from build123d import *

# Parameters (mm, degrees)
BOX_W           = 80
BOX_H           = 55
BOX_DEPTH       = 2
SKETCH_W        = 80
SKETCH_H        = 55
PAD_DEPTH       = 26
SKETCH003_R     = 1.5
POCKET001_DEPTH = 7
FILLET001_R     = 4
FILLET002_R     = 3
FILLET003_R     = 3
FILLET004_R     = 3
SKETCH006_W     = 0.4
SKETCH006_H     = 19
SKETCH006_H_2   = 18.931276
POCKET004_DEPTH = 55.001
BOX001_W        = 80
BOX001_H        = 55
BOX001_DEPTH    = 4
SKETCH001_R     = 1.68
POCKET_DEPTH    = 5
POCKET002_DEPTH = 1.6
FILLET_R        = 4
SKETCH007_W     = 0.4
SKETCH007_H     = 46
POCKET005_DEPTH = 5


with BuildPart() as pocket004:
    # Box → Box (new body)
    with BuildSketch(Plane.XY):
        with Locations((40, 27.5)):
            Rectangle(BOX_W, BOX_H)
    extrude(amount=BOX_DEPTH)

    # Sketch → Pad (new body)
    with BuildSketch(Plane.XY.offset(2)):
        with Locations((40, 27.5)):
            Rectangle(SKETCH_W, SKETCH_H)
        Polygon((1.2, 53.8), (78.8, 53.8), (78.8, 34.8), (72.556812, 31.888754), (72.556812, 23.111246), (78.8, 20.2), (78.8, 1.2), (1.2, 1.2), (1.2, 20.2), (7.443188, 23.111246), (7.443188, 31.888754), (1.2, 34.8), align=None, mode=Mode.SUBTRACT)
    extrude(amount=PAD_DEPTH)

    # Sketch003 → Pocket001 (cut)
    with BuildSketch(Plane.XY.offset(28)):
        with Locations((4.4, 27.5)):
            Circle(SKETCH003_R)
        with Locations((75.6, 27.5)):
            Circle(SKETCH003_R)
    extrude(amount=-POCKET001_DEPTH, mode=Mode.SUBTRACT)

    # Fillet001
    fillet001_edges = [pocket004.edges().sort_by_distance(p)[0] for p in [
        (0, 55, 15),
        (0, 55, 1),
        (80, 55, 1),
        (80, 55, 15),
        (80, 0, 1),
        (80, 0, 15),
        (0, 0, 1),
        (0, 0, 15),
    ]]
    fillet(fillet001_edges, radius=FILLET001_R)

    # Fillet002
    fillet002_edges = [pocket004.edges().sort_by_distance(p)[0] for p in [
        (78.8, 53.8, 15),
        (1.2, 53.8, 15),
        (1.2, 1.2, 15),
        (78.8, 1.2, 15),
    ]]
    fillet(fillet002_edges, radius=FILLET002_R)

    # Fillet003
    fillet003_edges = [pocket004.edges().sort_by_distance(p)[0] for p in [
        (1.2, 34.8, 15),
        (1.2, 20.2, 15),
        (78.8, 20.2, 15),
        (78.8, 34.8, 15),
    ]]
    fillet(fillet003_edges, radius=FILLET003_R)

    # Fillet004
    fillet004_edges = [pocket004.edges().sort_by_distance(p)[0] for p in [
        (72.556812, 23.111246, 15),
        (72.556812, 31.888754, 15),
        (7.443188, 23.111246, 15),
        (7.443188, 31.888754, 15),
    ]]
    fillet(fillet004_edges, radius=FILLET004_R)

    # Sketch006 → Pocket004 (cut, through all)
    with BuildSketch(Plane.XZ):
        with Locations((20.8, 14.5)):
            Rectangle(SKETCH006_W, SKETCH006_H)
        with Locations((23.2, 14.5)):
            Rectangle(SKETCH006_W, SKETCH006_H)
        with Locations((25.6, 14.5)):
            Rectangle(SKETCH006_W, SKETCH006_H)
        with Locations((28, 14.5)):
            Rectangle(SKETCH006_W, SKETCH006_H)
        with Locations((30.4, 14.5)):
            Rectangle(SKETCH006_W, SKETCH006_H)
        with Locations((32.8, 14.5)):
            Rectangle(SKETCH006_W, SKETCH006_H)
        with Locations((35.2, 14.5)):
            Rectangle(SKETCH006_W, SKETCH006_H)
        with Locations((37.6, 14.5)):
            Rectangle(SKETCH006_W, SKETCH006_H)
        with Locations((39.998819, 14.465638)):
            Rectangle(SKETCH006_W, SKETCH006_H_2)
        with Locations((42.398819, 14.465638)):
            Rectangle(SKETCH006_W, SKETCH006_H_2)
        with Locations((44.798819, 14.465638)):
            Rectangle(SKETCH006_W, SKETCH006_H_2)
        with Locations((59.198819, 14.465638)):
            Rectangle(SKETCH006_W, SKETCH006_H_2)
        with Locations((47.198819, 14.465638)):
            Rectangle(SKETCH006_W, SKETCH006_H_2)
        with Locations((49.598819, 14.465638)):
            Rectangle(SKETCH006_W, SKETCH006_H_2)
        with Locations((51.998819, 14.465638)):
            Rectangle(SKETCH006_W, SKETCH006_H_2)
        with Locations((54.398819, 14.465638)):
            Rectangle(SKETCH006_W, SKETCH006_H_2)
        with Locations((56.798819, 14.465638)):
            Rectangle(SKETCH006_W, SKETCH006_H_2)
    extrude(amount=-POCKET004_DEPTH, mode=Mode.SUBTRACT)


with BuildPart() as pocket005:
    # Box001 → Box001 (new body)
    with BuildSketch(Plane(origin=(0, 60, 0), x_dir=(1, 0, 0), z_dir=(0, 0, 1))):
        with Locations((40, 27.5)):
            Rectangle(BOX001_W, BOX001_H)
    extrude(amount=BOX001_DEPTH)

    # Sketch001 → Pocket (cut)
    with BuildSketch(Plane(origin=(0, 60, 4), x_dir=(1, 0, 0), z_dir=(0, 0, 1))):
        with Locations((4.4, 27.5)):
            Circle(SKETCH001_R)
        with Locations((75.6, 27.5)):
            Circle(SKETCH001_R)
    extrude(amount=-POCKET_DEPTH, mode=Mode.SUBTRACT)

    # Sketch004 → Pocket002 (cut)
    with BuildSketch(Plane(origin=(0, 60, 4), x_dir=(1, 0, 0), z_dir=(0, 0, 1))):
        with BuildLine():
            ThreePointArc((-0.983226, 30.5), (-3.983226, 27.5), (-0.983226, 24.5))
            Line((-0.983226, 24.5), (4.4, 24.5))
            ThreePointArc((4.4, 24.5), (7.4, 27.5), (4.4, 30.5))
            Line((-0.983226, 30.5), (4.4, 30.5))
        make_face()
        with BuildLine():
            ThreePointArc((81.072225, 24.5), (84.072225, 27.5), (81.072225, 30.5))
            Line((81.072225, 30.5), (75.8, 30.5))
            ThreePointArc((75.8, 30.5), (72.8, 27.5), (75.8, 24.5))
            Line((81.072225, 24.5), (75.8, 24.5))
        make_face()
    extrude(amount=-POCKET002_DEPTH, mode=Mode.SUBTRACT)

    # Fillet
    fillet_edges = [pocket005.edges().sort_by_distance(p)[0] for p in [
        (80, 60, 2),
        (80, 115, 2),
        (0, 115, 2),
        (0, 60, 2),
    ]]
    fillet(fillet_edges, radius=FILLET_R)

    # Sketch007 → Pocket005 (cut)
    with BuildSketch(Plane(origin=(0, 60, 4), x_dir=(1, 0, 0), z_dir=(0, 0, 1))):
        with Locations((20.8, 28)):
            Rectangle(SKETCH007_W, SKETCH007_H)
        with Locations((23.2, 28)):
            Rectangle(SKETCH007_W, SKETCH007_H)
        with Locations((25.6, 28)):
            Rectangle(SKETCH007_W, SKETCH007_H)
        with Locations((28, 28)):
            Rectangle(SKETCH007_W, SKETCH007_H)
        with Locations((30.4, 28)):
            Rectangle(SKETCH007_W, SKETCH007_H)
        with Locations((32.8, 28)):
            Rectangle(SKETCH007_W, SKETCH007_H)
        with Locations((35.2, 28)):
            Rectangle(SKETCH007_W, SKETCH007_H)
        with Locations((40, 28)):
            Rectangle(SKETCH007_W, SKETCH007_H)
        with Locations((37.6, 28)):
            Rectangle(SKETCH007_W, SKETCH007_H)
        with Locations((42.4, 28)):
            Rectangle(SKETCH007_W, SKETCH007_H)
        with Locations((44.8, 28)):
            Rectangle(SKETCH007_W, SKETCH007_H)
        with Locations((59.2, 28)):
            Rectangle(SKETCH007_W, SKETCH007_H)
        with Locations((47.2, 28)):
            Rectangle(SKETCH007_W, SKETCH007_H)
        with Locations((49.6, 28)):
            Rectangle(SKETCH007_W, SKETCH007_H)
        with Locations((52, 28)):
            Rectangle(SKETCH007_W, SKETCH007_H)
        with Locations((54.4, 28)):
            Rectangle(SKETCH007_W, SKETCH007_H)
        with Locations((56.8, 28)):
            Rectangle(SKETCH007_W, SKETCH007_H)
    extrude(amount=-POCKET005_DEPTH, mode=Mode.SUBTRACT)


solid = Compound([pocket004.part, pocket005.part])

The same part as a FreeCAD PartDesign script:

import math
import FreeCAD as App
import Part
import Sketcher

V = App.Vector
Q = App.Units.Quantity


def edges_at(feature, points):
    """Names of the edges that pass closest to the given points."""
    edges = feature.Shape.Edges
    near = lambda p: min(range(len(edges)), key=lambda i: edges[i].distToShape(Part.Vertex(*p))[0])
    return sorted({f"Edge{near(p) + 1}" for p in points})


def add_polygon(sketch, points):
    """Adds a closed chain of lines whose ends are joined by coincident constraints."""
    first, n = sketch.GeometryCount, len(points)
    for a, b in zip(points, points[1:] + points[:1]):
        sketch.addGeometry(Part.LineSegment(App.Vector(*a, 0), App.Vector(*b, 0)), False)
    for i in range(n):
        sketch.addConstraint(Sketcher.Constraint("Coincident", first + i, 2, first + (i + 1) % n, 1))

doc = App.newDocument("Part")
body = doc.addObject("PartDesign::Body", "Body")

# Sketch on XY plane
sketch1 = body.newObject("Sketcher::SketchObject", "Sketch")
sketch1.AttachmentSupport = (doc.getObject("XY_Plane"), [""])
sketch1.MapMode = "FlatFace"
add_polygon(sketch1, [(0, 55), (0, 0), (80, 0), (80, 55)])  # lines 0-3
sketch1.addConstraint([
    Sketcher.Constraint("Vertical", 0),
    Sketcher.Constraint("Horizontal", 1),
    Sketcher.Constraint("Vertical", 2),
    Sketcher.Constraint("Horizontal", 3),
    Sketcher.Constraint("Coincident", 0, 2, -1, 1),
    Sketcher.Constraint("DistanceX", 1, 1, 1, 2, 80.0),
    Sketcher.Constraint("DistanceY", 0, 2, 0, 1, 55.0),
])
pad1 = body.newObject("PartDesign::Pad", "Pad")
pad1.Profile = sketch1
pad1.Length = 2

# Sketch on XY plane
sketch2 = body.newObject("Sketcher::SketchObject", "Sketch001")
sketch2.AttachmentSupport = (doc.getObject("XY_Plane"), [""])
sketch2.MapMode = "FlatFace"
sketch2.AttachmentOffset = App.Placement(V(0, 0, 2), App.Rotation())
add_polygon(sketch2, [(0, 55), (0, 0), (80, 0), (80, 55)])  # lines 0-3
add_polygon(sketch2, [(1.2, 34.8), (1.2, 53.8), (78.8, 53.8), (78.8, 34.8), (72.556812, 31.888754), (72.556812, 23.111246), (78.8, 20.2), (78.8, 1.2), (1.2, 1.2), (1.2, 20.2), (7.443188, 23.111246), (7.443188, 31.888754)])  # lines 4-15
sketch2.addConstraint([
    Sketcher.Constraint("Vertical", 0),
    Sketcher.Constraint("Horizontal", 1),
    Sketcher.Constraint("Vertical", 2),
    Sketcher.Constraint("Horizontal", 3),
    Sketcher.Constraint("Vertical", 4),
    Sketcher.Constraint("Horizontal", 5),
    Sketcher.Constraint("Vertical", 6),
    Sketcher.Constraint("Vertical", 8),
    Sketcher.Constraint("Vertical", 10),
    Sketcher.Constraint("Horizontal", 11),
    Sketcher.Constraint("Vertical", 12),
    Sketcher.Constraint("Vertical", 14),
    Sketcher.Constraint("Coincident", 0, 2, -1, 1),
    Sketcher.Constraint("Parallel", 7, 13),
    Sketcher.Constraint("Parallel", 9, 15),
    Sketcher.Constraint("Horizontal", 9, 2, 12, 2),
    Sketcher.Constraint("Horizontal", 8, 2, 13, 2),
    Sketcher.Constraint("Horizontal", 7, 2, 14, 2),
    Sketcher.Constraint("Horizontal", 6, 2, 15, 2),
    Sketcher.Constraint("Vertical", 6, 2, 9, 2),
    Sketcher.Constraint("Vertical", 4, 2, 11, 2),
    Sketcher.Constraint("Equal", 6, 10),
    Sketcher.Constraint("DistanceX", 1, 1, 1, 2, 80.0),
    Sketcher.Constraint("DistanceY", 0, 2, 0, 1, 55.0),
    Sketcher.Constraint("DistanceY", 4, 1, 4, 2, 19.0),
    Sketcher.Constraint("Angle", 7, Q("-155.000003 deg")),
    Sketcher.Constraint("DistanceX", 5, 1, 5, 2, 77.6),
    Sketcher.Constraint("DistanceX", -1, 1, 4, 2, 1.2),
    Sketcher.Constraint("DistanceY", -1, 1, 4, 2, 53.8),
    Sketcher.Constraint("DistanceY", -1, 1, 9, 2, 20.2),
    Sketcher.Constraint("DistanceY", 8, 2, 8, 1, 8.777508),
])
pad2 = body.newObject("PartDesign::Pad", "Pad001")
pad2.Profile = sketch2
pad2.Length = 26

# Sketch on XY plane
sketch3 = body.newObject("Sketcher::SketchObject", "Sketch002")
sketch3.AttachmentSupport = (doc.getObject("XY_Plane"), [""])
sketch3.MapMode = "FlatFace"
sketch3.AttachmentOffset = App.Placement(V(0, 0, 28), App.Rotation())
sketch3.addGeometry([
    Part.Circle(V(4.4, 27.5, 0), V(0, 0, 1), 1.5),
    Part.Circle(V(75.6, 27.5, 0), V(0, 0, 1), 1.5),
], False)
sketch3.addConstraint([
    Sketcher.Constraint("Equal", 0, 1),
    Sketcher.Constraint("Horizontal", 0, 3, 1, 3),
    Sketcher.Constraint("Diameter", 0, 3.0),
    Sketcher.Constraint("DistanceX", -1, 1, 0, 3, 4.4),
    Sketcher.Constraint("DistanceY", -1, 1, 0, 3, 27.5),
    Sketcher.Constraint("DistanceX", -1, 1, 1, 3, 75.6),
])
pocket1 = body.newObject("PartDesign::Pocket", "Pocket")
pocket1.Profile = sketch3
pocket1.Length = 7
doc.recompute()

fillet = body.newObject("PartDesign::Fillet", "Fillet")
fillet.Base = (pocket1, edges_at(pocket1, [
    (0, 55, 14),
    (0, 55, 14),
    (80, 55, 14),
    (80, 55, 14),
    (80, 0, 14),
    (80, 0, 14),
    (0, 0, 14),
    (0, 0, 14),
]))
fillet.Radius = 4
doc.recompute()

fillet2 = body.newObject("PartDesign::Fillet", "Fillet001")
fillet2.Base = (fillet, edges_at(fillet, [
    (78.8, 53.8, 15),
    (1.2, 53.8, 15),
    (1.2, 1.2, 15),
    (78.8, 1.2, 15),
]))
fillet2.Radius = 3
doc.recompute()

fillet3 = body.newObject("PartDesign::Fillet", "Fillet002")
fillet3.Base = (fillet2, edges_at(fillet2, [
    (1.2, 34.8, 15),
    (1.2, 20.2, 15),
    (78.8, 20.2, 15),
    (78.8, 34.8, 15),
]))
fillet3.Radius = 3
doc.recompute()

fillet4 = body.newObject("PartDesign::Fillet", "Fillet003")
fillet4.Base = (fillet3, edges_at(fillet3, [
    (72.557, 23.111, 15),
    (72.557, 31.889, 15),
    (7.443, 23.111, 15),
    (7.443, 31.889, 15),
]))
fillet4.Radius = 3

# Sketch on XZ plane
sketch4 = body.newObject("Sketcher::SketchObject", "Sketch003")
sketch4.AttachmentSupport = (doc.getObject("XZ_Plane"), [""])
sketch4.MapMode = "FlatFace"
add_polygon(sketch4, [(20.6, 24), (20.6, 5), (21, 5), (21, 24)])  # lines 0-3
add_polygon(sketch4, [(23, 24), (23, 5), (23.4, 5), (23.4, 24)])  # lines 4-7
add_polygon(sketch4, [(25.4, 24), (25.4, 5), (25.8, 5), (25.8, 24)])  # lines 8-11
add_polygon(sketch4, [(27.8, 24), (27.8, 5), (28.2, 5), (28.2, 24)])  # lines 12-15
add_polygon(sketch4, [(30.2, 24), (30.2, 5), (30.6, 5), (30.6, 24)])  # lines 16-19
add_polygon(sketch4, [(32.6, 24), (32.6, 5), (33, 5), (33, 24)])  # lines 20-23
add_polygon(sketch4, [(35, 24), (35, 5), (35.4, 5), (35.4, 24)])  # lines 24-27
add_polygon(sketch4, [(37.4, 24), (37.4, 5), (37.8, 5), (37.8, 24)])  # lines 28-31
add_polygon(sketch4, [(39.798819, 23.931276), (39.798819, 5), (40.198819, 5), (40.198819, 23.931276)])  # lines 32-35
add_polygon(sketch4, [(42.198819, 23.931276), (42.198819, 5), (42.598819, 5), (42.598819, 23.931276)])  # lines 36-39
add_polygon(sketch4, [(44.598819, 23.931276), (44.598819, 5), (44.998819, 5), (44.998819, 23.931276)])  # lines 40-43
add_polygon(sketch4, [(58.998819, 23.931276), (58.998819, 5), (59.398819, 5), (59.398819, 23.931276)])  # lines 44-47
add_polygon(sketch4, [(46.998819, 23.931276), (46.998819, 5), (47.398819, 5), (47.398819, 23.931276)])  # lines 48-51
add_polygon(sketch4, [(49.398819, 23.931276), (49.398819, 5), (49.798819, 5), (49.798819, 23.931276)])  # lines 52-55
add_polygon(sketch4, [(51.798819, 23.931276), (51.798819, 5), (52.198819, 5), (52.198819, 23.931276)])  # lines 56-59
add_polygon(sketch4, [(54.198819, 23.931276), (54.198819, 5), (54.598819, 5), (54.598819, 23.931276)])  # lines 60-63
add_polygon(sketch4, [(56.598819, 23.931276), (56.598819, 5), (56.998819, 5), (56.998819, 23.931276)])  # lines 64-67
sketch4.addConstraint([
    Sketcher.Constraint("Vertical", 0),
    Sketcher.Constraint("Horizontal", 1),
    Sketcher.Constraint("Vertical", 2),
    Sketcher.Constraint("Horizontal", 3),
    Sketcher.Constraint("Vertical", 4),
    Sketcher.Constraint("Horizontal", 5),
    Sketcher.Constraint("Vertical", 6),
    Sketcher.Constraint("Horizontal", 7),
    Sketcher.Constraint("Vertical", 8),
    Sketcher.Constraint("Horizontal", 9),
    Sketcher.Constraint("Vertical", 10),
    Sketcher.Constraint("Horizontal", 11),
    Sketcher.Constraint("Vertical", 12),
    Sketcher.Constraint("Horizontal", 13),
    Sketcher.Constraint("Vertical", 14),
    Sketcher.Constraint("Horizontal", 15),
    Sketcher.Constraint("Vertical", 16),
    Sketcher.Constraint("Horizontal", 17),
    Sketcher.Constraint("Vertical", 18),
    Sketcher.Constraint("Horizontal", 19),
    Sketcher.Constraint("Vertical", 20),
    Sketcher.Constraint("Horizontal", 21),
    Sketcher.Constraint("Vertical", 22),
    Sketcher.Constraint("Horizontal", 23),
    Sketcher.Constraint("Vertical", 24),
    Sketcher.Constraint("Horizontal", 25),
    Sketcher.Constraint("Vertical", 26),
    Sketcher.Constraint("Horizontal", 27),
    Sketcher.Constraint("Vertical", 28),
    Sketcher.Constraint("Horizontal", 29),
    Sketcher.Constraint("Vertical", 30),
    Sketcher.Constraint("Horizontal", 31),
    Sketcher.Constraint("Vertical", 32),
    Sketcher.Constraint("Horizontal", 33),
    Sketcher.Constraint("Vertical", 34),
    Sketcher.Constraint("Horizontal", 35),
    Sketcher.Constraint("Vertical", 36),
    Sketcher.Constraint("Horizontal", 37),
    Sketcher.Constraint("Vertical", 38),
    Sketcher.Constraint("Horizontal", 39),
    Sketcher.Constraint("Vertical", 40),
    Sketcher.Constraint("Horizontal", 41),
    Sketcher.Constraint("Vertical", 42),
    Sketcher.Constraint("Horizontal", 43),
    Sketcher.Constraint("Vertical", 44),
    Sketcher.Constraint("Horizontal", 45),
    Sketcher.Constraint("Vertical", 46),
    Sketcher.Constraint("Horizontal", 47),
    Sketcher.Constraint("Vertical", 48),
    Sketcher.Constraint("Horizontal", 49),
    Sketcher.Constraint("Vertical", 50),
    Sketcher.Constraint("Horizontal", 51),
    Sketcher.Constraint("Vertical", 52),
    Sketcher.Constraint("Horizontal", 53),
    Sketcher.Constraint("Vertical", 54),
    Sketcher.Constraint("Horizontal", 55),
    Sketcher.Constraint("Vertical", 56),
    Sketcher.Constraint("Horizontal", 57),
    Sketcher.Constraint("Vertical", 58),
    Sketcher.Constraint("Horizontal", 59),
    Sketcher.Constraint("Vertical", 60),
    Sketcher.Constraint("Horizontal", 61),
    Sketcher.Constraint("Vertical", 62),
    Sketcher.Constraint("Horizontal", 63),
    Sketcher.Constraint("Vertical", 64),
    Sketcher.Constraint("Horizontal", 65),
    Sketcher.Constraint("Vertical", 66),
    Sketcher.Constraint("Horizontal", 67),
    Sketcher.Constraint("Horizontal", 1, 2, 4, 2),
    Sketcher.Constraint("Horizontal", 3, 2, 6, 2),
    Sketcher.Constraint("Horizontal", 5, 2, 8, 2),
    Sketcher.Constraint("Horizontal", 7, 2, 10, 2),
    Sketcher.Constraint("Horizontal", 9, 2, 12, 2),
    Sketcher.Constraint("Horizontal", 11, 2, 14, 2),
    Sketcher.Constraint("Horizontal", 13, 2, 16, 2),
    Sketcher.Constraint("Horizontal", 15, 2, 18, 2),
    Sketcher.Constraint("Horizontal", 17, 2, 20, 2),
    Sketcher.Constraint("Horizontal", 19, 2, 22, 2),
    Sketcher.Constraint("Horizontal", 21, 2, 24, 2),
    Sketcher.Constraint("Horizontal", 23, 2, 26, 2),
    Sketcher.Constraint("Horizontal", 25, 2, 28, 2),
    Sketcher.Constraint("Horizontal", 27, 2, 30, 2),
    Sketcher.Constraint("Horizontal", 29, 2, 32, 2),
    Sketcher.Constraint("Horizontal", 33, 2, 36, 2),
    Sketcher.Constraint("Horizontal", 35, 2, 38, 2),
    Sketcher.Constraint("Horizontal", 37, 2, 40, 2),
    Sketcher.Constraint("Horizontal", 39, 2, 42, 2),
    Sketcher.Constraint("Horizontal", 41, 2, 44, 2),
    Sketcher.Constraint("Horizontal", 43, 2, 46, 2),
    Sketcher.Constraint("Horizontal", 45, 2, 48, 2),
    Sketcher.Constraint("Horizontal", 47, 2, 50, 2),
    Sketcher.Constraint("Horizontal", 49, 2, 52, 2),
    Sketcher.Constraint("Horizontal", 51, 2, 54, 2),
    Sketcher.Constraint("Horizontal", 53, 2, 56, 2),
    Sketcher.Constraint("Horizontal", 55, 2, 58, 2),
    Sketcher.Constraint("Horizontal", 57, 2, 60, 2),
    Sketcher.Constraint("Horizontal", 59, 2, 62, 2),
    Sketcher.Constraint("Horizontal", 61, 2, 64, 2),
    Sketcher.Constraint("Horizontal", 63, 2, 66, 2),
    Sketcher.Constraint("Equal", 3, 5),
    Sketcher.Constraint("Equal", 7, 9),
    Sketcher.Constraint("Equal", 11, 13),
    Sketcher.Constraint("Equal", 15, 17),
    Sketcher.Constraint("Equal", 19, 21),
    Sketcher.Constraint("Equal", 23, 25),
    Sketcher.Constraint("Equal", 27, 29),
    Sketcher.Constraint("Equal", 31, 33),
    Sketcher.Constraint("Equal", 35, 37),
    Sketcher.Constraint("Equal", 39, 41),
    Sketcher.Constraint("Equal", 43, 45),
    Sketcher.Constraint("Equal", 47, 49),
    Sketcher.Constraint("Equal", 51, 53),
    Sketcher.Constraint("Equal", 55, 57),
    Sketcher.Constraint("Equal", 59, 61),
    Sketcher.Constraint("Equal", 63, 65),
    Sketcher.Constraint("DistanceY", 0, 2, 0, 1, 19.0),
    Sketcher.Constraint("DistanceX", 1, 1, 1, 2, 0.4),
    Sketcher.Constraint("DistanceY", -1, 1, 0, 2, 5.0),
    Sketcher.Constraint("DistanceX", -1, 1, 1, 2, 21.0),
    Sketcher.Constraint("DistanceX", -1, 1, 4, 2, 23.0),
    Sketcher.Constraint("DistanceX", -1, 1, 21, 2, 33.0),
    Sketcher.Constraint("DistanceX", -1, 1, 24, 2, 35.0),
    Sketcher.Constraint("DistanceX", -1, 1, 8, 2, 25.4),
    Sketcher.Constraint("DistanceX", -1, 1, 12, 2, 27.8),
    Sketcher.Constraint("DistanceX", -1, 1, 16, 2, 30.2),
    Sketcher.Constraint("DistanceX", -1, 1, 28, 2, 37.4),
    Sketcher.Constraint("DistanceY", 32, 2, 32, 1, 18.931276),
    Sketcher.Constraint("DistanceX", -1, 1, 32, 2, 39.798819),
    Sketcher.Constraint("DistanceX", -1, 1, 36, 2, 42.198819),
    Sketcher.Constraint("DistanceX", -1, 1, 40, 2, 44.598819),
    Sketcher.Constraint("DistanceX", -1, 1, 44, 2, 58.998819),
    Sketcher.Constraint("DistanceX", -1, 1, 48, 2, 46.998819),
    Sketcher.Constraint("DistanceX", -1, 1, 52, 2, 49.398819),
    Sketcher.Constraint("DistanceX", -1, 1, 56, 2, 51.798819),
    Sketcher.Constraint("DistanceX", -1, 1, 60, 2, 54.198819),
    Sketcher.Constraint("DistanceX", -1, 1, 64, 2, 56.598819),
])
pocket2 = body.newObject("PartDesign::Pocket", "Pocket001")
pocket2.Profile = sketch4
pocket2.Type = "ThroughAll"
body2 = doc.addObject("PartDesign::Body", "Body001")

# Sketch on XY plane
sketch5 = body2.newObject("Sketcher::SketchObject", "Sketch004")
sketch5.AttachmentSupport = (doc.getObject("XY_Plane001"), [""])
sketch5.MapMode = "FlatFace"
add_polygon(sketch5, [(0, 115), (0, 60), (80, 60), (80, 115)])  # lines 0-3
sketch5.addConstraint([
    Sketcher.Constraint("Vertical", 0),
    Sketcher.Constraint("Horizontal", 1),
    Sketcher.Constraint("Vertical", 2),
    Sketcher.Constraint("Horizontal", 3),
    Sketcher.Constraint("PointOnObject", 0, 2, -2),
    Sketcher.Constraint("DistanceX", 1, 1, 1, 2, 80.0),
    Sketcher.Constraint("DistanceY", 0, 2, 0, 1, 55.0),
    Sketcher.Constraint("DistanceY", -1, 1, 0, 2, 60.0),
])
pad3 = body2.newObject("PartDesign::Pad", "Pad002")
pad3.Profile = sketch5
pad3.Length = 4

# Sketch on XY plane
sketch6 = body2.newObject("Sketcher::SketchObject", "Sketch005")
sketch6.AttachmentSupport = (doc.getObject("XY_Plane001"), [""])
sketch6.MapMode = "FlatFace"
sketch6.AttachmentOffset = App.Placement(V(0, 0, 4), App.Rotation())
sketch6.addGeometry([
    Part.Circle(V(4.4, 87.5, 0), V(0, 0, 1), 1.68),
    Part.Circle(V(75.6, 87.5, 0), V(0, 0, 1), 1.68),
], False)
sketch6.addConstraint([
    Sketcher.Constraint("Equal", 0, 1),
    Sketcher.Constraint("Horizontal", 0, 3, 1, 3),
    Sketcher.Constraint("Diameter", 0, 3.36),
    Sketcher.Constraint("DistanceX", -1, 1, 0, 3, 4.4),
    Sketcher.Constraint("DistanceY", -1, 1, 0, 3, 87.5),
    Sketcher.Constraint("DistanceX", -1, 1, 1, 3, 75.6),
])
pocket3 = body2.newObject("PartDesign::Pocket", "Pocket002")
pocket3.Profile = sketch6
pocket3.Length = 5

# Sketch on XY plane
sketch7 = body2.newObject("Sketcher::SketchObject", "Sketch006")
sketch7.AttachmentSupport = (doc.getObject("XY_Plane001"), [""])
sketch7.MapMode = "FlatFace"
sketch7.AttachmentOffset = App.Placement(V(0, 0, 4), App.Rotation())
sketch7.addGeometry([
    Part.ArcOfCircle(Part.Circle(V(-0.983226, 87.5, 0), V(0, 0, 1), 3), math.radians(90), math.radians(270)),  # 0
    Part.LineSegment(V(-0.983226, 84.5, 0), V(4.4, 84.5, 0)),  # 1
    Part.ArcOfCircle(Part.Circle(V(4.4, 87.5, 0), V(0, 0, 1), 3), math.radians(-90), math.radians(90)),  # 2
    Part.LineSegment(V(4.4, 90.5, 0), V(-0.983226, 90.5, 0)),  # 3
    Part.ArcOfCircle(Part.Circle(V(81.072225, 87.5, 0), V(0, 0, 1), 3), math.radians(-90), math.radians(90)),  # 4
    Part.LineSegment(V(81.072225, 90.5, 0), V(75.8, 90.5, 0)),  # 5
    Part.ArcOfCircle(Part.Circle(V(75.8, 87.5, 0), V(0, 0, 1), 3), math.radians(90), math.radians(270)),  # 6
    Part.LineSegment(V(75.8, 84.5, 0), V(81.072225, 84.5, 0)),  # 7
], False)
sketch7.addConstraint([
    Sketcher.Constraint("Tangent", 0, 2, 1, 1),
    Sketcher.Constraint("Tangent", 1, 2, 2, 1),
    Sketcher.Constraint("Tangent", 2, 2, 3, 1),
    Sketcher.Constraint("Tangent", 3, 2, 0, 1),
    Sketcher.Constraint("Tangent", 4, 2, 5, 1),
    Sketcher.Constraint("Tangent", 5, 2, 6, 1),
    Sketcher.Constraint("Tangent", 6, 2, 7, 1),
    Sketcher.Constraint("Tangent", 7, 2, 4, 1),
    Sketcher.Constraint("Horizontal", 1),
    Sketcher.Constraint("Horizontal", 3),
    Sketcher.Constraint("Horizontal", 5),
    Sketcher.Constraint("Horizontal", 7),
    Sketcher.Constraint("Equal", 2, 4),
    Sketcher.Constraint("Horizontal", 2, 3, 4, 3),
    Sketcher.Constraint("Radius", 0, 3.0),
    Sketcher.Constraint("DistanceY", -1, 1, 0, 3, 87.5),
    Sketcher.Constraint("DistanceX", -1, 1, 2, 3, 4.4),
    Sketcher.Constraint("DistanceX", -1, 1, 6, 3, 75.8),
    Sketcher.Constraint("DistanceX", 1, 1, 1, 2, 5.383226),
    Sketcher.Constraint("DistanceX", 5, 2, 5, 1, 5.272225),
])
pocket4 = body2.newObject("PartDesign::Pocket", "Pocket003")
pocket4.Profile = sketch7
pocket4.Length = 1.6
doc.recompute()

fillet5 = body2.newObject("PartDesign::Fillet", "Fillet004")
fillet5.Base = (pocket4, edges_at(pocket4, [
    (80, 60, 2),
    (80, 115, 2),
    (0, 115, 2),
    (0, 60, 2),
]))
fillet5.Radius = 4

# Sketch on XY plane
sketch8 = body2.newObject("Sketcher::SketchObject", "Sketch007")
sketch8.AttachmentSupport = (doc.getObject("XY_Plane001"), [""])
sketch8.MapMode = "FlatFace"
sketch8.AttachmentOffset = App.Placement(V(0, 0, 4), App.Rotation())
add_polygon(sketch8, [(20.6, 111), (20.6, 65), (21, 65), (21, 111)])  # lines 0-3
add_polygon(sketch8, [(23, 111), (23, 65), (23.4, 65), (23.4, 111)])  # lines 4-7
add_polygon(sketch8, [(25.4, 111), (25.4, 65), (25.8, 65), (25.8, 111)])  # lines 8-11
add_polygon(sketch8, [(27.8, 111), (27.8, 65), (28.2, 65), (28.2, 111)])  # lines 12-15
add_polygon(sketch8, [(30.2, 111), (30.2, 65), (30.6, 65), (30.6, 111)])  # lines 16-19
add_polygon(sketch8, [(32.6, 111), (32.6, 65), (33, 65), (33, 111)])  # lines 20-23
add_polygon(sketch8, [(35, 111), (35, 65), (35.4, 65), (35.4, 111)])  # lines 24-27
add_polygon(sketch8, [(39.8, 111), (39.8, 65), (40.2, 65), (40.2, 111)])  # lines 28-31
add_polygon(sketch8, [(37.4, 111), (37.4, 65), (37.8, 65), (37.8, 111)])  # lines 32-35
add_polygon(sketch8, [(42.2, 111), (42.2, 65), (42.6, 65), (42.6, 111)])  # lines 36-39
add_polygon(sketch8, [(44.6, 111), (44.6, 65), (45, 65), (45, 111)])  # lines 40-43
add_polygon(sketch8, [(59, 111), (59, 65), (59.4, 65), (59.4, 111)])  # lines 44-47
add_polygon(sketch8, [(47, 111), (47, 65), (47.4, 65), (47.4, 111)])  # lines 48-51
add_polygon(sketch8, [(49.4, 111), (49.4, 65), (49.8, 65), (49.8, 111)])  # lines 52-55
add_polygon(sketch8, [(51.8, 111), (51.8, 65), (52.2, 65), (52.2, 111)])  # lines 56-59
add_polygon(sketch8, [(54.2, 111), (54.2, 65), (54.6, 65), (54.6, 111)])  # lines 60-63
add_polygon(sketch8, [(56.6, 111), (56.6, 65), (57, 65), (57, 111)])  # lines 64-67
sketch8.addConstraint([
    Sketcher.Constraint("Vertical", 0),
    Sketcher.Constraint("Horizontal", 1),
    Sketcher.Constraint("Vertical", 2),
    Sketcher.Constraint("Horizontal", 3),
    Sketcher.Constraint("Vertical", 4),
    Sketcher.Constraint("Horizontal", 5),
    Sketcher.Constraint("Vertical", 6),
    Sketcher.Constraint("Horizontal", 7),
    Sketcher.Constraint("Vertical", 8),
    Sketcher.Constraint("Horizontal", 9),
    Sketcher.Constraint("Vertical", 10),
    Sketcher.Constraint("Horizontal", 11),
    Sketcher.Constraint("Vertical", 12),
    Sketcher.Constraint("Horizontal", 13),
    Sketcher.Constraint("Vertical", 14),
    Sketcher.Constraint("Horizontal", 15),
    Sketcher.Constraint("Vertical", 16),
    Sketcher.Constraint("Horizontal", 17),
    Sketcher.Constraint("Vertical", 18),
    Sketcher.Constraint("Horizontal", 19),
    Sketcher.Constraint("Vertical", 20),
    Sketcher.Constraint("Horizontal", 21),
    Sketcher.Constraint("Vertical", 22),
    Sketcher.Constraint("Horizontal", 23),
    Sketcher.Constraint("Vertical", 24),
    Sketcher.Constraint("Horizontal", 25),
    Sketcher.Constraint("Vertical", 26),
    Sketcher.Constraint("Horizontal", 27),
    Sketcher.Constraint("Vertical", 28),
    Sketcher.Constraint("Horizontal", 29),
    Sketcher.Constraint("Vertical", 30),
    Sketcher.Constraint("Horizontal", 31),
    Sketcher.Constraint("Vertical", 32),
    Sketcher.Constraint("Horizontal", 33),
    Sketcher.Constraint("Vertical", 34),
    Sketcher.Constraint("Horizontal", 35),
    Sketcher.Constraint("Vertical", 36),
    Sketcher.Constraint("Horizontal", 37),
    Sketcher.Constraint("Vertical", 38),
    Sketcher.Constraint("Horizontal", 39),
    Sketcher.Constraint("Vertical", 40),
    Sketcher.Constraint("Horizontal", 41),
    Sketcher.Constraint("Vertical", 42),
    Sketcher.Constraint("Horizontal", 43),
    Sketcher.Constraint("Vertical", 44),
    Sketcher.Constraint("Horizontal", 45),
    Sketcher.Constraint("Vertical", 46),
    Sketcher.Constraint("Horizontal", 47),
    Sketcher.Constraint("Vertical", 48),
    Sketcher.Constraint("Horizontal", 49),
    Sketcher.Constraint("Vertical", 50),
    Sketcher.Constraint("Horizontal", 51),
    Sketcher.Constraint("Vertical", 52),
    Sketcher.Constraint("Horizontal", 53),
    Sketcher.Constraint("Vertical", 54),
    Sketcher.Constraint("Horizontal", 55),
    Sketcher.Constraint("Vertical", 56),
    Sketcher.Constraint("Horizontal", 57),
    Sketcher.Constraint("Vertical", 58),
    Sketcher.Constraint("Horizontal", 59),
    Sketcher.Constraint("Vertical", 60),
    Sketcher.Constraint("Horizontal", 61),
    Sketcher.Constraint("Vertical", 62),
    Sketcher.Constraint("Horizontal", 63),
    Sketcher.Constraint("Vertical", 64),
    Sketcher.Constraint("Horizontal", 65),
    Sketcher.Constraint("Vertical", 66),
    Sketcher.Constraint("Horizontal", 67),
    Sketcher.Constraint("Horizontal", 1, 2, 4, 2),
    Sketcher.Constraint("Horizontal", 3, 2, 6, 2),
    Sketcher.Constraint("Horizontal", 5, 2, 8, 2),
    Sketcher.Constraint("Horizontal", 7, 2, 10, 2),
    Sketcher.Constraint("Horizontal", 9, 2, 12, 2),
    Sketcher.Constraint("Horizontal", 11, 2, 14, 2),
    Sketcher.Constraint("Horizontal", 13, 2, 16, 2),
    Sketcher.Constraint("Horizontal", 15, 2, 18, 2),
    Sketcher.Constraint("Horizontal", 17, 2, 20, 2),
    Sketcher.Constraint("Horizontal", 19, 2, 22, 2),
    Sketcher.Constraint("Horizontal", 21, 2, 24, 2),
    Sketcher.Constraint("Horizontal", 23, 2, 26, 2),
    Sketcher.Constraint("Horizontal", 25, 2, 28, 2),
    Sketcher.Constraint("Horizontal", 27, 2, 30, 2),
    Sketcher.Constraint("Horizontal", 29, 2, 32, 2),
    Sketcher.Constraint("Horizontal", 31, 2, 34, 2),
    Sketcher.Constraint("Horizontal", 33, 2, 36, 2),
    Sketcher.Constraint("Horizontal", 35, 2, 38, 2),
    Sketcher.Constraint("Horizontal", 37, 2, 40, 2),
    Sketcher.Constraint("Horizontal", 39, 2, 42, 2),
    Sketcher.Constraint("Horizontal", 41, 2, 44, 2),
    Sketcher.Constraint("Horizontal", 43, 2, 46, 2),
    Sketcher.Constraint("Horizontal", 45, 2, 48, 2),
    Sketcher.Constraint("Horizontal", 47, 2, 50, 2),
    Sketcher.Constraint("Horizontal", 49, 2, 52, 2),
    Sketcher.Constraint("Horizontal", 51, 2, 54, 2),
    Sketcher.Constraint("Horizontal", 53, 2, 56, 2),
    Sketcher.Constraint("Horizontal", 55, 2, 58, 2),
    Sketcher.Constraint("Horizontal", 57, 2, 60, 2),
    Sketcher.Constraint("Horizontal", 59, 2, 62, 2),
    Sketcher.Constraint("Horizontal", 61, 2, 64, 2),
    Sketcher.Constraint("Horizontal", 63, 2, 66, 2),
    Sketcher.Constraint("Equal", 3, 5),
    Sketcher.Constraint("Equal", 7, 9),
    Sketcher.Constraint("Equal", 11, 13),
    Sketcher.Constraint("Equal", 15, 17),
    Sketcher.Constraint("Equal", 19, 21),
    Sketcher.Constraint("Equal", 23, 25),
    Sketcher.Constraint("Equal", 27, 29),
    Sketcher.Constraint("Equal", 31, 33),
    Sketcher.Constraint("Equal", 35, 37),
    Sketcher.Constraint("Equal", 39, 41),
    Sketcher.Constraint("Equal", 43, 45),
    Sketcher.Constraint("Equal", 47, 49),
    Sketcher.Constraint("Equal", 51, 53),
    Sketcher.Constraint("Equal", 55, 57),
    Sketcher.Constraint("Equal", 59, 61),
    Sketcher.Constraint("Equal", 63, 65),
    Sketcher.Constraint("DistanceY", 0, 2, 0, 1, 46.0),
    Sketcher.Constraint("DistanceX", 1, 1, 1, 2, 0.4),
    Sketcher.Constraint("DistanceY", -1, 1, 0, 2, 65.0),
    Sketcher.Constraint("DistanceX", -1, 1, 1, 2, 21.0),
    Sketcher.Constraint("DistanceX", -1, 1, 4, 2, 23.0),
    Sketcher.Constraint("DistanceX", -1, 1, 21, 2, 33.0),
    Sketcher.Constraint("DistanceX", -1, 1, 24, 2, 35.0),
    Sketcher.Constraint("DistanceX", -1, 1, 41, 2, 45.0),
    Sketcher.Constraint("DistanceX", -1, 1, 44, 2, 59.0),
    Sketcher.Constraint("DistanceX", -1, 1, 48, 2, 47.0),
    Sketcher.Constraint("DistanceX", -1, 1, 65, 2, 57.0),
    Sketcher.Constraint("DistanceX", -1, 1, 8, 2, 25.4),
    Sketcher.Constraint("DistanceX", -1, 1, 12, 2, 27.8),
    Sketcher.Constraint("DistanceX", -1, 1, 16, 2, 30.2),
    Sketcher.Constraint("DistanceX", -1, 1, 28, 2, 39.8),
    Sketcher.Constraint("DistanceX", -1, 1, 32, 2, 37.4),
    Sketcher.Constraint("DistanceX", -1, 1, 36, 2, 42.2),
    Sketcher.Constraint("DistanceX", -1, 1, 52, 2, 49.4),
    Sketcher.Constraint("DistanceX", -1, 1, 56, 2, 51.8),
    Sketcher.Constraint("DistanceX", -1, 1, 60, 2, 54.2),
])
pocket5 = body2.newObject("PartDesign::Pocket", "Pocket004")
pocket5.Profile = sketch8
pocket5.Length = 5

doc.recompute()
